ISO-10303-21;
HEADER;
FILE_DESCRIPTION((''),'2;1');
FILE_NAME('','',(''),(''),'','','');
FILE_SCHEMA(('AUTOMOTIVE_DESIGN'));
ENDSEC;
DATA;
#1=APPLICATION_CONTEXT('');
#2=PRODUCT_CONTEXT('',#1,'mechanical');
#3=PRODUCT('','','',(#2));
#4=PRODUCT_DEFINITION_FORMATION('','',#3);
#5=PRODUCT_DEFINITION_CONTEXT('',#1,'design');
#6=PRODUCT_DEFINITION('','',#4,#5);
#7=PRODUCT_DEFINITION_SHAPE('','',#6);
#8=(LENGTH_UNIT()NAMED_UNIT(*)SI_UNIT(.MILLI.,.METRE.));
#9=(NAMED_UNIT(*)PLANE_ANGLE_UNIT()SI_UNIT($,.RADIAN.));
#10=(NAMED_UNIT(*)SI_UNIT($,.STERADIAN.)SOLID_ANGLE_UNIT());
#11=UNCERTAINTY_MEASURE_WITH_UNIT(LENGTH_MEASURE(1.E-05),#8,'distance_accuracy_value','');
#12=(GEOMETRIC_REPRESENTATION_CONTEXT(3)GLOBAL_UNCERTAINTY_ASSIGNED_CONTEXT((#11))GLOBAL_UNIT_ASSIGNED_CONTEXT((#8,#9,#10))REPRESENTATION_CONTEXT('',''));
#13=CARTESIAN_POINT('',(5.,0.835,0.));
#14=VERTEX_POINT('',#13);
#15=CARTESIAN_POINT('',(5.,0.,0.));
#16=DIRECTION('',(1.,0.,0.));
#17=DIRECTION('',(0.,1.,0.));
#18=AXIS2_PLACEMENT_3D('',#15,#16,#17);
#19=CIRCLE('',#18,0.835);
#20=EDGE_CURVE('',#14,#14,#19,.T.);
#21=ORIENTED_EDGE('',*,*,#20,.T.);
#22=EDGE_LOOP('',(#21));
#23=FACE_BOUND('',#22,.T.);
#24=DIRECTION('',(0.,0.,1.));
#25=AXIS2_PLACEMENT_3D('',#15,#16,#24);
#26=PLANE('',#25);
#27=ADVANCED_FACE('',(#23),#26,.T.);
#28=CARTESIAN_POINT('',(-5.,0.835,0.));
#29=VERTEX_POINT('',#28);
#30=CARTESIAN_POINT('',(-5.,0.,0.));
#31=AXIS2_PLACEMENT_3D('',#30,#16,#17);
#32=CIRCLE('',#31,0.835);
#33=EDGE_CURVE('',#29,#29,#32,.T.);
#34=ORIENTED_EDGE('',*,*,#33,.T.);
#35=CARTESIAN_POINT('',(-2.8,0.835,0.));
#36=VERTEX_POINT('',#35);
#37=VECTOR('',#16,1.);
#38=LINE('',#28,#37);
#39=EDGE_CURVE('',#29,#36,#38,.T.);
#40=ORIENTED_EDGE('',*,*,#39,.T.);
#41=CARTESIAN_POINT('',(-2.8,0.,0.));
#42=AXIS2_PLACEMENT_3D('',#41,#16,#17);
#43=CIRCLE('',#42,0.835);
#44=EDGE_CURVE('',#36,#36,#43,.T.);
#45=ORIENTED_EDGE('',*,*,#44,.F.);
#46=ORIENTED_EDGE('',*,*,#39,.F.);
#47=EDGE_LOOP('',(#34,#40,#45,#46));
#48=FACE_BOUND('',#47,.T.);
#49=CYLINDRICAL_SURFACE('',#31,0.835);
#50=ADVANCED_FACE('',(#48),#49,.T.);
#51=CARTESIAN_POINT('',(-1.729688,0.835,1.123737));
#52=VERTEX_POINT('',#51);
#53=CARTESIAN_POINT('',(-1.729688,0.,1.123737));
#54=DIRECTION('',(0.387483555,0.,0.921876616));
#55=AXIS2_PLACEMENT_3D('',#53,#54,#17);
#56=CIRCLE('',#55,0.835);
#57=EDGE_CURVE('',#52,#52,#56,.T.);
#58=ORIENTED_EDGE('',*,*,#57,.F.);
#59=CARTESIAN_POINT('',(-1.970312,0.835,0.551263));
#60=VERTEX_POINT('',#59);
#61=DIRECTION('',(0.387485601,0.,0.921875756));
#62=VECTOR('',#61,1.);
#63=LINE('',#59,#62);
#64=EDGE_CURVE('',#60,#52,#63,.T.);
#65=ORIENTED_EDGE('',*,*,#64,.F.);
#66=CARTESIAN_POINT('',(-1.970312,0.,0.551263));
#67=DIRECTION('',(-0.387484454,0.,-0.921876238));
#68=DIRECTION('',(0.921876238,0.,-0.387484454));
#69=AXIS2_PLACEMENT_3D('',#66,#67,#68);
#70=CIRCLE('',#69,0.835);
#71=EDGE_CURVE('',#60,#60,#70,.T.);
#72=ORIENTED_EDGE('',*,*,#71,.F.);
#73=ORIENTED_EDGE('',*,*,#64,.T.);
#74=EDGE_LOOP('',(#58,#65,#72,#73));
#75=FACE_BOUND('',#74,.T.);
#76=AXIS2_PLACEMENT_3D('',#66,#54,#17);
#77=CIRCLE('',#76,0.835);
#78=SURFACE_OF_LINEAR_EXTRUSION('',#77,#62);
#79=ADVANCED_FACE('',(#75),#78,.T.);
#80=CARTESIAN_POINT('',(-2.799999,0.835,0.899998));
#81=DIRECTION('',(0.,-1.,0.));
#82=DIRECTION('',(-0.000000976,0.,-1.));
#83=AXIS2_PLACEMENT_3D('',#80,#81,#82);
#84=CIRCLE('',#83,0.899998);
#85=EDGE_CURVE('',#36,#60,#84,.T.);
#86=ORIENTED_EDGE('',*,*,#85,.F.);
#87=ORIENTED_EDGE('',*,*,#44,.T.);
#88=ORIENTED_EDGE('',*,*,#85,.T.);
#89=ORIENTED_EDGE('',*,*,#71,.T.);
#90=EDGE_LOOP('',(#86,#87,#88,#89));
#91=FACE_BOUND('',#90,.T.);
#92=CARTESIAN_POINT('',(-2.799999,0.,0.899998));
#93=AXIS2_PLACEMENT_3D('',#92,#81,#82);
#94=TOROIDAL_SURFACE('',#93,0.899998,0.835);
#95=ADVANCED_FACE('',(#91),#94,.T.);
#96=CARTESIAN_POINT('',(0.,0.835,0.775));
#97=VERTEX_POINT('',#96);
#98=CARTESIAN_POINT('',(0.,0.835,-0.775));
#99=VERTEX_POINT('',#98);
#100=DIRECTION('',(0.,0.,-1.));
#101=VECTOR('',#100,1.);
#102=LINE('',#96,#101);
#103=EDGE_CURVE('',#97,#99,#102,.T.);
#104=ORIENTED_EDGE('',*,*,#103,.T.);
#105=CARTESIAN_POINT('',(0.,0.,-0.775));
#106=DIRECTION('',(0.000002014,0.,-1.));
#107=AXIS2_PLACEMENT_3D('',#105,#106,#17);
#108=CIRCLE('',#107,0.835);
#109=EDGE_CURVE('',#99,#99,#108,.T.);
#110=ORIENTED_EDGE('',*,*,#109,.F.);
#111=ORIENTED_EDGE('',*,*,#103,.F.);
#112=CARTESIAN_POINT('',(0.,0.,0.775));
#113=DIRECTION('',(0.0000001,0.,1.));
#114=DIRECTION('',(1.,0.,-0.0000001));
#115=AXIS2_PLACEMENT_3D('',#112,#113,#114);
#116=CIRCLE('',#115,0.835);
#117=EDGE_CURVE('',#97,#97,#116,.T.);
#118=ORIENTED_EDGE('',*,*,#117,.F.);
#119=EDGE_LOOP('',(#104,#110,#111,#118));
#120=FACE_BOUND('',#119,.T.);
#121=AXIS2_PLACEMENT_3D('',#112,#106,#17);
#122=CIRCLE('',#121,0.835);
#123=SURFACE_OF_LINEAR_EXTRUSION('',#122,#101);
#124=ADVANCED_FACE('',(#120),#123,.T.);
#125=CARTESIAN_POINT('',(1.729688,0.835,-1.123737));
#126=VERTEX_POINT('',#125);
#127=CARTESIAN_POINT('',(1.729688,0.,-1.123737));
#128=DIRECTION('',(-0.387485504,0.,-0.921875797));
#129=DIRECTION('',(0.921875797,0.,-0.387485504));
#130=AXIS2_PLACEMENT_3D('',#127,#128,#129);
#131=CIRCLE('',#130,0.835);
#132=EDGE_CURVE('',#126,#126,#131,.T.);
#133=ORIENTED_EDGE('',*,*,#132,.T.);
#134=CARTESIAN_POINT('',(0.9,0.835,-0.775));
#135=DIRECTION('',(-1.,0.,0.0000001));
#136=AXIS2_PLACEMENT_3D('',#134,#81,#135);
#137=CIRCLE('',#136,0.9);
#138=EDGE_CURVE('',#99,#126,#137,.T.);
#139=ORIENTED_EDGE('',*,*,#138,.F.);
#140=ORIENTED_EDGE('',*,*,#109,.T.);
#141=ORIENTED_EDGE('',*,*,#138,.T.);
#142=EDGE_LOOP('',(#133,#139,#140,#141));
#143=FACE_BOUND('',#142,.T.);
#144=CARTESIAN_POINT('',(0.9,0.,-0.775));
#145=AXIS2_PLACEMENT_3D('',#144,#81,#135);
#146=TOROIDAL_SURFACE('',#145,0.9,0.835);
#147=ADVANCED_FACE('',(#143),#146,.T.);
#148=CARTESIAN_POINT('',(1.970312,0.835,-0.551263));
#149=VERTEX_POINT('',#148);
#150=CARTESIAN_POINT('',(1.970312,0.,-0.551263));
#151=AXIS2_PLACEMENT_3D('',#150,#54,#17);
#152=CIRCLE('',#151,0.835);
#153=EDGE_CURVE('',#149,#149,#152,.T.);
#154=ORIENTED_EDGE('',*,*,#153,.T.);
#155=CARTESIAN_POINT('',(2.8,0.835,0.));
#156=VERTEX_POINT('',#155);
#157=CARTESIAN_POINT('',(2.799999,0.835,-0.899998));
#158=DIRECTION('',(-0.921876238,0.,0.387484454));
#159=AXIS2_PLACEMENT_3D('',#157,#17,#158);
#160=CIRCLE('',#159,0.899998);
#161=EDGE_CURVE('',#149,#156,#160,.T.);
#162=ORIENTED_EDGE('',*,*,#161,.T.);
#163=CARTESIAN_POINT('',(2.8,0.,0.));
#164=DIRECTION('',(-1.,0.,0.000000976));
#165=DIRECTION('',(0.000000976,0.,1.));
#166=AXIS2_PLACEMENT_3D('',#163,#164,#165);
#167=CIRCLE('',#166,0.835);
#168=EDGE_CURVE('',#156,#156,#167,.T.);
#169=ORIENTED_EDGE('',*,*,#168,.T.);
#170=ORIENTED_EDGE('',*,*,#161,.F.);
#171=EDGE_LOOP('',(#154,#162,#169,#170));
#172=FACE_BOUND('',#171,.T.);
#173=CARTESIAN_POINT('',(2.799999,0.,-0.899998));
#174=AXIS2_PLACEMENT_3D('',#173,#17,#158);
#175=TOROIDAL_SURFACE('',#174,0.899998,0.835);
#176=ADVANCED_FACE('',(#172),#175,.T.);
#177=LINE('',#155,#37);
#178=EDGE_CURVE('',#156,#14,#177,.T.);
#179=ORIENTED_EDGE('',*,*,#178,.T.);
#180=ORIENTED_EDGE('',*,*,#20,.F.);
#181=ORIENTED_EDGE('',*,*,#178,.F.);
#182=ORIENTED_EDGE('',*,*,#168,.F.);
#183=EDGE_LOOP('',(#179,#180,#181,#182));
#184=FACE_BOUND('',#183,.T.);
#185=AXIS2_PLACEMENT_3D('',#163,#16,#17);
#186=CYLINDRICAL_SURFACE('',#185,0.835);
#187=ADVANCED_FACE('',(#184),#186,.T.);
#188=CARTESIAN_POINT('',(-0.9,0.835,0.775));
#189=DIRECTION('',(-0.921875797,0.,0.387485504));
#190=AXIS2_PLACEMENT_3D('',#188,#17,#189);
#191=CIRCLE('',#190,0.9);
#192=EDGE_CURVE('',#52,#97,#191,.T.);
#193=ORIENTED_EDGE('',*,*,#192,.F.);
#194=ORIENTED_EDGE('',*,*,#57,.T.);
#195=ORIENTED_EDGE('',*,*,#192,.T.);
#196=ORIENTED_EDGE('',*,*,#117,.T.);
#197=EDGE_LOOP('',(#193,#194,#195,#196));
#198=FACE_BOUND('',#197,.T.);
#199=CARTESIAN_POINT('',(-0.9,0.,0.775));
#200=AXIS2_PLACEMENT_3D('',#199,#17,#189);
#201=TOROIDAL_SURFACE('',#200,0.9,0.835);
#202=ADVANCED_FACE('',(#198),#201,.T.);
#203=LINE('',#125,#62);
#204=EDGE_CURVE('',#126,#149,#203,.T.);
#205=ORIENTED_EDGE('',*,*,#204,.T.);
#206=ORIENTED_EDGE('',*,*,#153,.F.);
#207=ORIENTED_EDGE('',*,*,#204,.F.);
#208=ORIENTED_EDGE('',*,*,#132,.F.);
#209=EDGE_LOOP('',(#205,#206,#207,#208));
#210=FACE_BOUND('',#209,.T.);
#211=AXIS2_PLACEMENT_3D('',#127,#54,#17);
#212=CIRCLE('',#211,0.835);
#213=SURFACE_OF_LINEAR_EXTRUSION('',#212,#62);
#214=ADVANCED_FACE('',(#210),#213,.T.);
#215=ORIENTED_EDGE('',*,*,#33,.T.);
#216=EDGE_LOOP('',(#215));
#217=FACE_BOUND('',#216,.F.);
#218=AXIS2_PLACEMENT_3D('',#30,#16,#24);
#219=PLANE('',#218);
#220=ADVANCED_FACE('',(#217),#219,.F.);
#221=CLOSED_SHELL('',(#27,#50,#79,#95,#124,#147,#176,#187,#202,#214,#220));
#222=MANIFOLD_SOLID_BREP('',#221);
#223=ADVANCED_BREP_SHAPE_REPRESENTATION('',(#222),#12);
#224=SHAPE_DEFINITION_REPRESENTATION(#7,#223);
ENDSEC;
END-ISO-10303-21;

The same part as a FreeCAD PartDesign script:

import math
import FreeCAD as App
import Part
import Sketcher

doc = App.newDocument("Part")
body = doc.addObject("PartDesign::Body", "Body")

sketch1 = doc.addObject("Sketcher::SketchObject", "Sketch")
body.addObject(sketch1)
sketch1.AttachmentSupport = (doc.YZ_Plane, [""])
sketch1.MapMode = "FlatFace"
sketch1.AttachmentOffset = App.Placement(App.Vector(0, 0, -5), App.Rotation())
sketch1.addGeometry(Part.Circle(App.Vector(0, 0, 0), App.Vector(0, 0, 1), 0.835), False)
sketch1.addConstraint(Sketcher.Constraint("Coincident", 0, 3, -1, 1))
sketch1.addConstraint(Sketcher.Constraint("Diameter", 0, 1.67))

sketch2 = doc.addObject("Sketcher::SketchObject", "Sketch001")
body.addObject(sketch2)
sketch2.AttachmentSupport = (doc.XZ_Plane, [""])
sketch2.MapMode = "FlatFace"
sketch2.addGeometry(Part.LineSegment(App.Vector(-5, 0, 0), App.Vector(-2.8, 0, 0)), False)
sketch2.addGeometry(Part.ArcOfCircle(Part.Circle(App.Vector(-2.799999, 0.899998, 0), App.Vector(0, 0, 1), 0.899998), math.radians(-90.000056), math.radians(-22.798065)), False)
sketch2.addGeometry(Part.LineSegment(App.Vector(-1.970312, 0.551263, 0), App.Vector(-1.729688, 1.123737, 0)), False)
sketch2.addGeometry(Part.ArcOfCircle(Part.Circle(App.Vector(-0.9, 0.775, 0), App.Vector(0, 0, 1), 0.9), math.radians(-0.000006), math.radians(157.20187)), False)
sketch2.addGeometry(Part.LineSegment(App.Vector(0, 0.775, 0), App.Vector(0, -0.775, 0)), False)
sketch2.addGeometry(Part.ArcOfCircle(Part.Circle(App.Vector(0.9, -0.775, 0), App.Vector(0, 0, 1), 0.9), math.radians(179.999994), math.radians(337.20187)), False)
sketch2.addGeometry(Part.LineSegment(App.Vector(1.729688, -1.123737, 0), App.Vector(1.970312, -0.551263, 0)), False)
sketch2.addGeometry(Part.ArcOfCircle(Part.Circle(App.Vector(2.799999, -0.899998, 0), App.Vector(0, 0, 1), 0.899998), math.radians(89.999944), math.radians(157.201935)), False)
sketch2.addGeometry(Part.LineSegment(App.Vector(2.8, 0, 0), App.Vector(5, 0, 0)), False)
sketch2.addConstraint(Sketcher.Constraint("Tangent", 0, 2, 1, 1))
sketch2.addConstraint(Sketcher.Constraint("Tangent", 1, 2, 2, 1))
sketch2.addConstraint(Sketcher.Constraint("Tangent", 2, 2, 3, 2))
sketch2.addConstraint(Sketcher.Constraint("Tangent", 3, 1, 4, 1))
sketch2.addConstraint(Sketcher.Constraint("Tangent", 4, 2, 5, 1))
sketch2.addConstraint(Sketcher.Constraint("Tangent", 5, 2, 6, 1))
sketch2.addConstraint(Sketcher.Constraint("Tangent", 6, 2, 7, 2))
sketch2.addConstraint(Sketcher.Constraint("Tangent", 7, 1, 8, 1))
sketch2.addConstraint(Sketcher.Constraint("Horizontal", 0))
sketch2.addConstraint(Sketcher.Constraint("Vertical", 4))
sketch2.addConstraint(Sketcher.Constraint("Horizontal", 8))
sketch2.addConstraint(Sketcher.Constraint("Equal", 1, 3))
sketch2.addConstraint(Sketcher.Constraint("Equal", 3, 5))
sketch2.addConstraint(Sketcher.Constraint("Equal", 5, 7))
sketch2.addConstraint(Sketcher.Constraint("Symmetric", 3, 3, 5, 3, -1, 1))
sketch2.addConstraint(Sketcher.Constraint("Symmetric", 1, 3, 7, 3, -1, 1))
sketch2.addConstraint(Sketcher.Constraint("Symmetric", 0, 1, 8, 2, -2))
sketch2.addConstraint(Sketcher.Constraint("Radius", 1, 0.899998))
sketch2.addConstraint(Sketcher.Constraint("DistanceX", 0, 1, 0, 2, 2.2))
sketch2.addConstraint(Sketcher.Constraint("DistanceX", 0, 1, -1, 1, 5.0))
sketch2.addConstraint(Sketcher.Constraint("DistanceY", 4, 2, 4, 1, 1.55))
doc.recompute()

additivepipe = doc.addObject("PartDesign::AdditivePipe", "AdditivePipe")
body.addObject(additivepipe)
additivepipe.Profile = sketch1
additivepipe.Spine = (sketch2, ["Edge1", "Edge2", "Edge3", "Edge4", "Edge5", "Edge6", "Edge7", "Edge8", "Edge9"])

doc.recompute()
